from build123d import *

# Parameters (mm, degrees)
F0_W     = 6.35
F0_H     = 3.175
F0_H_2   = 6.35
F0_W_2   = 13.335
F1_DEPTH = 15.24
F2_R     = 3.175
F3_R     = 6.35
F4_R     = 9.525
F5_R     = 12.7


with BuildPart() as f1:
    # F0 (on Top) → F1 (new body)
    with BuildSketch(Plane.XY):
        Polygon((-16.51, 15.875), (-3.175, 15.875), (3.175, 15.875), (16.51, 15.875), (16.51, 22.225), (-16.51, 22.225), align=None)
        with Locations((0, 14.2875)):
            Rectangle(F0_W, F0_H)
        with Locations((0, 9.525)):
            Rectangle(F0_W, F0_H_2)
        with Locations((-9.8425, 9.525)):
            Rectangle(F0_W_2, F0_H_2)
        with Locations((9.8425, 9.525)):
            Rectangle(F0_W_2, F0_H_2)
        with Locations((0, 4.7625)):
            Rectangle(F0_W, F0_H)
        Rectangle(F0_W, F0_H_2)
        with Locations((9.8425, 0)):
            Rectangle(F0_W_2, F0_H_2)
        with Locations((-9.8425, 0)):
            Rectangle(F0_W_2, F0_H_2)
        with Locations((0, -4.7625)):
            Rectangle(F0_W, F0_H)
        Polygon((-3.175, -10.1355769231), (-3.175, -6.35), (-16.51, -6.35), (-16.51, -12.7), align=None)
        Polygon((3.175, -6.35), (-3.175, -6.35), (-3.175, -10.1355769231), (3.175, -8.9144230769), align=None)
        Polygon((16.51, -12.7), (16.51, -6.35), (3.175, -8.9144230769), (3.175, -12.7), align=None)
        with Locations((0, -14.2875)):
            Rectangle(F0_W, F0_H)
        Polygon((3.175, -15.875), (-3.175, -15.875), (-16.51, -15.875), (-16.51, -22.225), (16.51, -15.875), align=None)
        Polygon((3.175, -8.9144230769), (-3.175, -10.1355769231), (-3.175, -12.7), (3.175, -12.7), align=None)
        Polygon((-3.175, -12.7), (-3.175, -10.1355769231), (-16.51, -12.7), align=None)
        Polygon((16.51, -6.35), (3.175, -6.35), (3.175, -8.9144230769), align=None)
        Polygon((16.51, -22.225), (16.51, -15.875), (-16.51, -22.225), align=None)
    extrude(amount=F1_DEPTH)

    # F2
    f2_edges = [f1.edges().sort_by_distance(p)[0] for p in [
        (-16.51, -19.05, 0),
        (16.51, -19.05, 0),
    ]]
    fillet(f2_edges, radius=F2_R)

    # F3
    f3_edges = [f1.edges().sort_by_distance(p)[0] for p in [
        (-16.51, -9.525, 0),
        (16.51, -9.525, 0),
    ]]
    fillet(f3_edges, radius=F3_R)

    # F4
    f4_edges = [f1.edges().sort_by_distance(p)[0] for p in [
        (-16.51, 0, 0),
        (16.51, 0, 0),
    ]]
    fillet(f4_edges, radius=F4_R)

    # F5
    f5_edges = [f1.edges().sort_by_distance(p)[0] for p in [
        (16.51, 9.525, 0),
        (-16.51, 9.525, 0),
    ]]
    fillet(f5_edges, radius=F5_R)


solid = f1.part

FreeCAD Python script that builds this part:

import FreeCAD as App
import Part
import Sketcher
Q = App.Units.Quantity


def edges_at(feature, points):
    """Names of the edges that pass closest to the given points."""
    edges = feature.Shape.Edges
    near = lambda p: min(range(len(edges)), key=lambda i: edges[i].distToShape(Part.Vertex(*p))[0])
    return sorted({f"Edge{near(p) + 1}" for p in points})


def add_polygon(sketch, points):
    """Adds a closed chain of lines whose ends are joined by coincident constraints."""
    first, n = sketch.GeometryCount, len(points)
    for a, b in zip(points, points[1:] + points[:1]):
        sketch.addGeometry(Part.LineSegment(App.Vector(*a, 0), App.Vector(*b, 0)), False)
    for i in range(n):
        sketch.addConstraint(Sketcher.Constraint("Coincident", first + i, 2, first + (i + 1) % n, 1))

doc = App.newDocument("Part")
body = doc.addObject("PartDesign::Body", "Body")

sketch1 = doc.addObject("Sketcher::SketchObject", "Sketch")
body.addObject(sketch1)
sketch1.AttachmentSupport = (doc.XY_Plane, [""])
sketch1.MapMode = "FlatFace"
add_polygon(sketch1, [(-16.51, 15.875), (-3.175, 15.875), (-3.175, 12.7), (-16.51, 12.7), (-16.51, 6.35), (-3.175, 6.35), (-3.175, 3.175), (-16.51, 3.175), (-16.51, -3.175), (-3.175, -3.175), (-3.175, -6.35), (-16.51, -6.35), (-16.51, -12.7), (-3.175, -12.7), (-3.175, -15.875), (-16.51, -15.875), (-16.51, -22.225), (16.51, -22.225), (16.51, -15.875), (3.175, -15.875), (3.175, -12.7), (16.51, -12.7), (16.51, -6.35), (3.175, -6.35), (3.175, -3.175), (16.51, -3.175), (16.51, 3.175), (3.175, 3.175), (3.175, 6.35), (16.51, 6.35), (16.51, 12.7), (3.175, 12.7), (3.175, 15.875), (16.51, 15.875), (16.51, 22.225), (-16.51, 22.225)])
sketch1.addConstraint([
    Sketcher.Constraint("Horizontal", 0),
    Sketcher.Constraint("Vertical", 1),
    Sketcher.Constraint("Horizontal", 2),
    Sketcher.Constraint("Vertical", 3),
    Sketcher.Constraint("Horizontal", 4),
    Sketcher.Constraint("Vertical", 5),
    Sketcher.Constraint("Horizontal", 6),
    Sketcher.Constraint("Vertical", 7),
    Sketcher.Constraint("Horizontal", 8),
    Sketcher.Constraint("Vertical", 9),
    Sketcher.Constraint("Horizontal", 10),
    Sketcher.Constraint("Vertical", 11),
    Sketcher.Constraint("Horizontal", 12),
    Sketcher.Constraint("Vertical", 13),
    Sketcher.Constraint("Horizontal", 14),
    Sketcher.Constraint("Vertical", 15),
    Sketcher.Constraint("Horizontal", 16),
    Sketcher.Constraint("Vertical", 17),
    Sketcher.Constraint("Horizontal", 18),
    Sketcher.Constraint("Vertical", 19),
    Sketcher.Constraint("Horizontal", 20),
    Sketcher.Constraint("Vertical", 21),
    Sketcher.Constraint("Horizontal", 22),
    Sketcher.Constraint("Vertical", 23),
    Sketcher.Constraint("Horizontal", 24),
    Sketcher.Constraint("Vertical", 25),
    Sketcher.Constraint("Horizontal", 26),
    Sketcher.Constraint("Vertical", 27),
    Sketcher.Constraint("Horizontal", 28),
    Sketcher.Constraint("Vertical", 29),
    Sketcher.Constraint("Horizontal", 30),
    Sketcher.Constraint("Vertical", 31),
    Sketcher.Constraint("Horizontal", 32),
    Sketcher.Constraint("Vertical", 33),
    Sketcher.Constraint("Horizontal", 34),
    Sketcher.Constraint("Vertical", 35),
    Sketcher.Constraint("Symmetric", 0, 2, 18, 2, -1, 1),
    Sketcher.Constraint("Symmetric", 2, 2, 20, 2, -1, 1),
    Sketcher.Constraint("Symmetric", 4, 2, 22, 2, -1, 1),
    Sketcher.Constraint("Symmetric", 6, 2, 24, 2, -1, 1),
    Sketcher.Constraint("Symmetric", 8, 2, 26, 2, -1, 1),
    Sketcher.Constraint("Symmetric", 10, 2, 28, 2, -1, 1),
    Sketcher.Constraint("Symmetric", 12, 2, 30, 2, -1, 1),
    Sketcher.Constraint("Symmetric", 14, 2, 32, 2, -1, 1),
    Sketcher.Constraint("Symmetric", 16, 2, 34, 2, -1, 1),
    Sketcher.Constraint("Symmetric", 14, 2, 17, 2, -2),
    Sketcher.Constraint("Symmetric", 12, 2, 19, 2, -2),
    Sketcher.Constraint("Symmetric", 10, 2, 21, 2, -2),
    Sketcher.Constraint("Symmetric", 8, 2, 23, 2, -2),
    Sketcher.Constraint("Vertical", 1, 2, 4, 2),
    Sketcher.Constraint("Vertical", 3, 2, 6, 2),
    Sketcher.Constraint("Vertical", 11, 2, 14, 2),
    Sketcher.Constraint("Equal", 1, 5),
    Sketcher.Constraint("Equal", 3, 7),
    Sketcher.Constraint("Equal", 11, 15),
    Sketcher.Constraint("DistanceX", 16, 1, 16, 2, Q("1.3 in")),
    Sketcher.Constraint("DistanceY", 16, 2, 5, 2, Q("1 in")),
    Sketcher.Constraint("DistanceY", 3, 2, 3, 1, Q("0.25 in")),
    Sketcher.Constraint("DistanceX", 0, 1, 0, 2, Q("0.525 in")),
])
pad1 = doc.addObject("PartDesign::Pad", "Pad")
body.addObject(pad1)
pad1.Profile = sketch1
pad1.Length = Q("0.6 in")
doc.recompute()

fillet = doc.addObject("PartDesign::Fillet", "Fillet")
body.addObject(fillet)
fillet.Base = (pad1, edges_at(pad1, [(-16.51, -19.05, 0), (16.51, -19.05, 0)]))
fillet.Radius = Q("0.125 in")
doc.recompute()

fillet2 = doc.addObject("PartDesign::Fillet", "Fillet001")
body.addObject(fillet2)
fillet2.Base = (fillet, edges_at(fillet, [(-16.51, -9.525, 0), (16.51, -9.525, 0)]))
fillet2.Radius = Q("0.25 in")
doc.recompute()

fillet3 = doc.addObject("PartDesign::Fillet", "Fillet002")
body.addObject(fillet3)
fillet3.Base = (fillet2, edges_at(fillet2, [(-16.51, 0, 0), (16.51, 0, 0)]))
fillet3.Radius = Q("0.375 in")
doc.recompute()

fillet4 = doc.addObject("PartDesign::Fillet", "Fillet003")
body.addObject(fillet4)
fillet4.Base = (fillet3, edges_at(fillet3, [(16.51, 9.525, 0), (-16.51, 9.525, 0)]))
fillet4.Radius = Q("0.5 in")

doc.recompute()
